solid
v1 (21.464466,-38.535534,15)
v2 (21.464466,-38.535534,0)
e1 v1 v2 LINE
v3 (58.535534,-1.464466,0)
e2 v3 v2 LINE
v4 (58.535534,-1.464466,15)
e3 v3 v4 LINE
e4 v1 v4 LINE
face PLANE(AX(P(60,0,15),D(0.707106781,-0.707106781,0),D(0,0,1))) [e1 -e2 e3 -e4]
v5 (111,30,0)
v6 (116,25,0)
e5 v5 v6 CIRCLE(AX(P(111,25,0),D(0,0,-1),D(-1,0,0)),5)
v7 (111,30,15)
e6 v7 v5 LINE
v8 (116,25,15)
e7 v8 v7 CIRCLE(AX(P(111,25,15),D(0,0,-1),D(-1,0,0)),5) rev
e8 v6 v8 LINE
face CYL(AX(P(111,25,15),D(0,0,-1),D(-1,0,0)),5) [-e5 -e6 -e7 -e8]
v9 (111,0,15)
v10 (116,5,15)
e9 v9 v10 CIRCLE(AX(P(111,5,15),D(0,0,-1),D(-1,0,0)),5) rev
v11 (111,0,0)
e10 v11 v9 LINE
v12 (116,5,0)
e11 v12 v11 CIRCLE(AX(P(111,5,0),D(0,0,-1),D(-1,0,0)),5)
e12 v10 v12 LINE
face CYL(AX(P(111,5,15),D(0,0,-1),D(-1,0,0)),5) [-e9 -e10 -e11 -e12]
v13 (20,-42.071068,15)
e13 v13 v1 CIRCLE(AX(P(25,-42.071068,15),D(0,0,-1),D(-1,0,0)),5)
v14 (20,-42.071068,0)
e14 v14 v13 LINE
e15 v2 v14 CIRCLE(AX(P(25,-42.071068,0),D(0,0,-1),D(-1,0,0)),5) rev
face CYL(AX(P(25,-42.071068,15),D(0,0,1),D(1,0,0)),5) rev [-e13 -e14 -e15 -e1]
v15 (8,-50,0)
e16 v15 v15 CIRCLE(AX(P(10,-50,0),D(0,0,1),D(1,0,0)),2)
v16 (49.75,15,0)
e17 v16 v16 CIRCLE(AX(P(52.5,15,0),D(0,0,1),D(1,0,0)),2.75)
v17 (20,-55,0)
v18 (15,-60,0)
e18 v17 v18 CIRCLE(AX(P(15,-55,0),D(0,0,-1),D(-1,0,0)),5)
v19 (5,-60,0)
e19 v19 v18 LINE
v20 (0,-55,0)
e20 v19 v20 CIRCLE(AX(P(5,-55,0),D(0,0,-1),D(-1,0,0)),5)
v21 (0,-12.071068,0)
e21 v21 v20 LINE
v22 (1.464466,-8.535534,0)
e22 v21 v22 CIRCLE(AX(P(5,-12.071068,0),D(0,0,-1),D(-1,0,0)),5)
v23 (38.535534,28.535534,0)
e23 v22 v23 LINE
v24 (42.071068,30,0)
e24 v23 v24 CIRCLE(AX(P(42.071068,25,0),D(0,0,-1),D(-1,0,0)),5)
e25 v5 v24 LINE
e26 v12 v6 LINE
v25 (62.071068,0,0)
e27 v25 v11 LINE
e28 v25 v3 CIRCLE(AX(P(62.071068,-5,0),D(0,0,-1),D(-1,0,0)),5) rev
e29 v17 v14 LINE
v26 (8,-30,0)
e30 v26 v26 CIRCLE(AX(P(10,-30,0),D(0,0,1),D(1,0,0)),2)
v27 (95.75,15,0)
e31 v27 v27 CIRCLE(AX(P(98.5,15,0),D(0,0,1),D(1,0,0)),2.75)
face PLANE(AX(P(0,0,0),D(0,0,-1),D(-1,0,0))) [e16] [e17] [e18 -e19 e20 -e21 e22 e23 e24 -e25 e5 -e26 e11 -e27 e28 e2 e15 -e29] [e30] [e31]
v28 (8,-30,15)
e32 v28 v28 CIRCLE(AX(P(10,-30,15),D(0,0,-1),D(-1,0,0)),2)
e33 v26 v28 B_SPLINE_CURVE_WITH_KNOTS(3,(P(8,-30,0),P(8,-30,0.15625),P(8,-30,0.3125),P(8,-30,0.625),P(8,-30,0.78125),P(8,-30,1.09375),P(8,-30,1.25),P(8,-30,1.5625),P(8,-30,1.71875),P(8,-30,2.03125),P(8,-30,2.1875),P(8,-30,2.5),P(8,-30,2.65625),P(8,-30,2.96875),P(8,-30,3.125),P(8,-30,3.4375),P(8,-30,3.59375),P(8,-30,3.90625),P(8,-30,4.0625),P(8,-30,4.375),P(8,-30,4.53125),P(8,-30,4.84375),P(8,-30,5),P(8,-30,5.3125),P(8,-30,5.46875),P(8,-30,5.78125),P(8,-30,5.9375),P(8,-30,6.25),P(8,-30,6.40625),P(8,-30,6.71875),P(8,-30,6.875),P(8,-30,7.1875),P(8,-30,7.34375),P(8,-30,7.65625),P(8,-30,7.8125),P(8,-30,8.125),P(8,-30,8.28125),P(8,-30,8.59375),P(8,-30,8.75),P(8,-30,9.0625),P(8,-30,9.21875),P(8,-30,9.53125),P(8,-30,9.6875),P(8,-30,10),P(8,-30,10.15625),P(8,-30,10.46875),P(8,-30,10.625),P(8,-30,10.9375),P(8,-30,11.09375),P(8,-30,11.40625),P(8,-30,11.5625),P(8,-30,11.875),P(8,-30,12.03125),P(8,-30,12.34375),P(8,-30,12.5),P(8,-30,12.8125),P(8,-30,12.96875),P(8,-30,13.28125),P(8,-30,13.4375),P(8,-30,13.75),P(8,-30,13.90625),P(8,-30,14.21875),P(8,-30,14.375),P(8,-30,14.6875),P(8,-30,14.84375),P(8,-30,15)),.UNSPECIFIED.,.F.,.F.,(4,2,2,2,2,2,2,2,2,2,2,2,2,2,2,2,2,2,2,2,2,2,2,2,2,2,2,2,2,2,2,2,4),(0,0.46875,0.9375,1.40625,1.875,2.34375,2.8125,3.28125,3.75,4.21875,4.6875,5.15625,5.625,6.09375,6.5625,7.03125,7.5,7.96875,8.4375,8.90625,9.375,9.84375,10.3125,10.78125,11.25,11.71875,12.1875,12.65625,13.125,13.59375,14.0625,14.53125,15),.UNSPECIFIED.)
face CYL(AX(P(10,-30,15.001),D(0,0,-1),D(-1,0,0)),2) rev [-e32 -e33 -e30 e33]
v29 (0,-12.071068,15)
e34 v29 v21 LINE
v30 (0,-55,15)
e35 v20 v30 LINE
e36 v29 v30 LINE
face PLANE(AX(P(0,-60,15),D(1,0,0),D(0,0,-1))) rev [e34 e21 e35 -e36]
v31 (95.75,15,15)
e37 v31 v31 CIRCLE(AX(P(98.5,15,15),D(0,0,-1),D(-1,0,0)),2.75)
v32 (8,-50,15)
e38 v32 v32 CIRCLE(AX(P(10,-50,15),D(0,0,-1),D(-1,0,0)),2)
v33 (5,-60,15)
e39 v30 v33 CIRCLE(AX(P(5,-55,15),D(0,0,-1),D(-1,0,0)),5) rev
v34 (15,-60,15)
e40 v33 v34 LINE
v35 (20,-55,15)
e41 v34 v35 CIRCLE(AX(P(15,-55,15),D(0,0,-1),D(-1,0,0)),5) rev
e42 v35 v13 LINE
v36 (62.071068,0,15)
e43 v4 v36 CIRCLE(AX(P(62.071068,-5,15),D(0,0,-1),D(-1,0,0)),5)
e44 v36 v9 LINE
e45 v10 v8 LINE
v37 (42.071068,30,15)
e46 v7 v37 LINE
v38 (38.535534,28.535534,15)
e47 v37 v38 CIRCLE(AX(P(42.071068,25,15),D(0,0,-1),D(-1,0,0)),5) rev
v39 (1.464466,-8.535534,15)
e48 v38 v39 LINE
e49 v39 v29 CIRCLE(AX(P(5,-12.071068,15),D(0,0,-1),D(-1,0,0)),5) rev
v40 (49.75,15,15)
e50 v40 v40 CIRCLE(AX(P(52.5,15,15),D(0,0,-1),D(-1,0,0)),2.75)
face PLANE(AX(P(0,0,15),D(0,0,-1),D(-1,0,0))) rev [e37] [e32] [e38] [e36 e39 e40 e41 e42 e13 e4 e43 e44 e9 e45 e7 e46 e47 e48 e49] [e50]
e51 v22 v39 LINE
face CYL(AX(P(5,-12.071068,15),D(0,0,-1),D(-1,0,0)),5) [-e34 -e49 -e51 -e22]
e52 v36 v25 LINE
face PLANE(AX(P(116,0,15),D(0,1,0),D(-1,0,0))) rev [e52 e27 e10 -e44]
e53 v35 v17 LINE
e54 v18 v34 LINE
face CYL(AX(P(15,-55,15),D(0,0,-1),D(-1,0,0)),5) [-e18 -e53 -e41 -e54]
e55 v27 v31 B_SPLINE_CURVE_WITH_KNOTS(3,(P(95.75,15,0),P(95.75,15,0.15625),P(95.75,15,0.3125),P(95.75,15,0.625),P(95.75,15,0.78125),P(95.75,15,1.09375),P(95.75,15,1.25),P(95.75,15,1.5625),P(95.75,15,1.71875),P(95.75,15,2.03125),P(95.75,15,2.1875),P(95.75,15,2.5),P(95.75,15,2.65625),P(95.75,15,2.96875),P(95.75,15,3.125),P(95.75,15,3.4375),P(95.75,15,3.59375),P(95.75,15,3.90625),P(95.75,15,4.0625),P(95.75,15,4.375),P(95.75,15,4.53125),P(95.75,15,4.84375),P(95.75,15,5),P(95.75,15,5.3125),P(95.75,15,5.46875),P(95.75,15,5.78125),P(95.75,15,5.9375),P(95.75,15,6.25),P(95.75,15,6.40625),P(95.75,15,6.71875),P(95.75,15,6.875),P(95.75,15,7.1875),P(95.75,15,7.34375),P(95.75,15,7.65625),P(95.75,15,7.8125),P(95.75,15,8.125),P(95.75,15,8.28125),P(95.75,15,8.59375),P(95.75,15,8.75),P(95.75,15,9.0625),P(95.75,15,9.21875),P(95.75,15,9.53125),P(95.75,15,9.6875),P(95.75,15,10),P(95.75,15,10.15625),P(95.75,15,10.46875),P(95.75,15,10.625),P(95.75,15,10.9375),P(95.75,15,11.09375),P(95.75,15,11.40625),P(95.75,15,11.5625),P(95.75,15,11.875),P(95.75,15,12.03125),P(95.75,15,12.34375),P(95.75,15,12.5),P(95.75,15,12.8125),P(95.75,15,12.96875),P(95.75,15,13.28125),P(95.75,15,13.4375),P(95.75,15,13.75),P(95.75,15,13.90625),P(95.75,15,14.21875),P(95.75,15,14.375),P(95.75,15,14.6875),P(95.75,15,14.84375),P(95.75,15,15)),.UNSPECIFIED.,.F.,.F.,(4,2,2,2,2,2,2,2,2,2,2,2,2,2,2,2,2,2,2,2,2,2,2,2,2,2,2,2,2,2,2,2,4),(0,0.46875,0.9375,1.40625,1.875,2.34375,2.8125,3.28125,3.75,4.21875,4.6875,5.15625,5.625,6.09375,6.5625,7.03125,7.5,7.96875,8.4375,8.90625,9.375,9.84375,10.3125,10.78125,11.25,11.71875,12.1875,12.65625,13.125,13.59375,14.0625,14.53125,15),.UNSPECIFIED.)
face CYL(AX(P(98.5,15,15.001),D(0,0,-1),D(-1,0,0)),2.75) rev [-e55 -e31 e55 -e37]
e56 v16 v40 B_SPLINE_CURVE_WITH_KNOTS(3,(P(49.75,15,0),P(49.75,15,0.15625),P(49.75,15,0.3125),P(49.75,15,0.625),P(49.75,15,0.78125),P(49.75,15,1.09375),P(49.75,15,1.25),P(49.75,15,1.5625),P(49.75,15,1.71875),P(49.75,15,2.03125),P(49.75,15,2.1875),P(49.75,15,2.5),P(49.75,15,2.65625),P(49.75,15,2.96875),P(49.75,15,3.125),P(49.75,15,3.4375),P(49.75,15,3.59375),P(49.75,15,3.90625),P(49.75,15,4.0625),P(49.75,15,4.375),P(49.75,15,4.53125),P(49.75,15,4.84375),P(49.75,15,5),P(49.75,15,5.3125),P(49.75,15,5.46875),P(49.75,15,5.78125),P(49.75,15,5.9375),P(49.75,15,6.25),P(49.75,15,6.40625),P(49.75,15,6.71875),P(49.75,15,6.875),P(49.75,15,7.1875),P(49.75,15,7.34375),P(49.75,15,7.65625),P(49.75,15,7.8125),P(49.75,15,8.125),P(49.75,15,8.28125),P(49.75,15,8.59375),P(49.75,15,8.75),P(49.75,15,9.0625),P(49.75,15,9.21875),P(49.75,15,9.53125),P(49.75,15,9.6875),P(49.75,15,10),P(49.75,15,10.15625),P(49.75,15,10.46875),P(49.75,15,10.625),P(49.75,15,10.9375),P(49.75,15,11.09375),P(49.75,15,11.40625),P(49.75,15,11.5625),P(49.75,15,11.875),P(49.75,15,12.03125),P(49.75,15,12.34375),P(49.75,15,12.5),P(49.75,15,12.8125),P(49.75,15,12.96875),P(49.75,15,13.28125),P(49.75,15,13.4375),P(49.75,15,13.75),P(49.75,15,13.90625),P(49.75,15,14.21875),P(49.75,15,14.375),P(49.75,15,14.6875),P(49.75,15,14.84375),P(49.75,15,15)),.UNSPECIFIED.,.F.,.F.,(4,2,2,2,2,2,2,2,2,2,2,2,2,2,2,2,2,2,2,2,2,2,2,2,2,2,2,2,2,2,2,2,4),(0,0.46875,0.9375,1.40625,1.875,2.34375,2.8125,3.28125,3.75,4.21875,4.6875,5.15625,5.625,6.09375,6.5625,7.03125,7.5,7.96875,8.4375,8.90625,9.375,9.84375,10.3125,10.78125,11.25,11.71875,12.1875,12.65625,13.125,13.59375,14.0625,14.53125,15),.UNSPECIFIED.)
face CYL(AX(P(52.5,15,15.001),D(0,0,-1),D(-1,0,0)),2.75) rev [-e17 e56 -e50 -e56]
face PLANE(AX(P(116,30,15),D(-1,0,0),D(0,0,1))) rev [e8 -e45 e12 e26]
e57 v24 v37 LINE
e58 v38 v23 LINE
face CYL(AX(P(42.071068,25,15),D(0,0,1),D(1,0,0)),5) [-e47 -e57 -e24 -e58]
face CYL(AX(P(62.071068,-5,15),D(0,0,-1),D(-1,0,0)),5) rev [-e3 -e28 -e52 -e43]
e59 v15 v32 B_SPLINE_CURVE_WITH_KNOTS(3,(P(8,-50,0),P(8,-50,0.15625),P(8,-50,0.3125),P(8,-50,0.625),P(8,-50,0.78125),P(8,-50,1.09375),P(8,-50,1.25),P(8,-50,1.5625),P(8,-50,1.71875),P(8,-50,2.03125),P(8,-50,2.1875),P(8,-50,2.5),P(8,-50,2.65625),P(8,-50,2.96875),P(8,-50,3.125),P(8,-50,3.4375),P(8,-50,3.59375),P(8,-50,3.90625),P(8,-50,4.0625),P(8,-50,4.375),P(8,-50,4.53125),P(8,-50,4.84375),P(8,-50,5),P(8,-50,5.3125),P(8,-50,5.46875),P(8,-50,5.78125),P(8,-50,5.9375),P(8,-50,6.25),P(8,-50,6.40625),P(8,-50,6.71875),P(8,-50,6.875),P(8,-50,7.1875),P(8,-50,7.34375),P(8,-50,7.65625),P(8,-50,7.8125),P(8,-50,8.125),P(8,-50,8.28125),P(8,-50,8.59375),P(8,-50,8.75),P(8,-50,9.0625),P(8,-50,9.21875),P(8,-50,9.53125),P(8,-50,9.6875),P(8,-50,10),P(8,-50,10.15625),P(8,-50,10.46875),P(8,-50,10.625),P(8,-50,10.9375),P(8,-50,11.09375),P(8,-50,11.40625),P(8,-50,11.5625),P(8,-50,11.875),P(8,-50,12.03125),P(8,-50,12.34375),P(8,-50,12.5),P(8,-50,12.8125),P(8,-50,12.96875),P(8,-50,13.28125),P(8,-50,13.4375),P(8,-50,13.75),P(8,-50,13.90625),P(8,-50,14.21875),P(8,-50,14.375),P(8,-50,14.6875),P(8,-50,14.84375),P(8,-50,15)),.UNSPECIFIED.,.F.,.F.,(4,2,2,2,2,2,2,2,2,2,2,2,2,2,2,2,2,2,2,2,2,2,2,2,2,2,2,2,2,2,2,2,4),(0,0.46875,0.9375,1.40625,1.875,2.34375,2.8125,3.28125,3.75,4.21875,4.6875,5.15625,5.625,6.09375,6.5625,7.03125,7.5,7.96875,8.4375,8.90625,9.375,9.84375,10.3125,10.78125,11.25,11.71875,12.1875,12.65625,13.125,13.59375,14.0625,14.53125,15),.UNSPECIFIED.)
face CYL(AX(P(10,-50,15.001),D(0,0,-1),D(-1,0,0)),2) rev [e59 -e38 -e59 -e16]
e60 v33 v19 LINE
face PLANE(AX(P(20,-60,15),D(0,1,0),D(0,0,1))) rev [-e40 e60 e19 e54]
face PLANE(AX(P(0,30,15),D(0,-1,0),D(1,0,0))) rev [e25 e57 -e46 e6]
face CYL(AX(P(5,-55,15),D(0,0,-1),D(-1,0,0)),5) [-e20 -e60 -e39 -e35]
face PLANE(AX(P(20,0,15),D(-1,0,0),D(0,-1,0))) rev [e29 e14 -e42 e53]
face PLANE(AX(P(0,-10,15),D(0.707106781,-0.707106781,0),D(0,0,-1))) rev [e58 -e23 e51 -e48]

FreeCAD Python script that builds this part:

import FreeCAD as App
import Part
import Sketcher
from FreeCAD import Vector


def edges_at(feature, points):
    """Names of the edges that pass closest to the given points."""
    edges = feature.Shape.Edges
    near = lambda p: min(range(len(edges)), key=lambda i: edges[i].distToShape(Part.Vertex(*p))[0])
    return sorted({f"Edge{near(p) + 1}" for p in points})

doc = App.newDocument("Part")
body = doc.addObject("PartDesign::Body", "Body")

# Sketch on XY plane
sketch1 = doc.addObject("Sketcher::SketchObject", "Sketch")
body.addObject(sketch1)
sketch1.AttachmentSupport = (doc.XY_Plane, [""])
sketch1.MapMode = "FlatFace"
sketch1.addGeometry(Part.LineSegment(Vector(0, 30, 0), Vector(0, -60, 0)), False)
sketch1.addGeometry(Part.LineSegment(Vector(0, -60, 0), Vector(20, -60, 0)), False)
sketch1.addGeometry(Part.LineSegment(Vector(20, -60, 0), Vector(20, 0, 0)), False)
sketch1.addGeometry(Part.LineSegment(Vector(20, 0, 0), Vector(116, 0, 0)), False)
sketch1.addGeometry(Part.LineSegment(Vector(116, 0, 0), Vector(116, 30, 0)), False)
sketch1.addGeometry(Part.LineSegment(Vector(116, 30, 0), Vector(0, 30, 0)), False)
sketch1.addConstraint(Sketcher.Constraint("Coincident", 0, 2, 1, 1))
sketch1.addConstraint(Sketcher.Constraint("Coincident", 1, 2, 2, 1))
sketch1.addConstraint(Sketcher.Constraint("Coincident", 2, 2, 3, 1))
sketch1.addConstraint(Sketcher.Constraint("Coincident", 3, 2, 4, 1))
sketch1.addConstraint(Sketcher.Constraint("Coincident", 4, 2, 5, 1))
sketch1.addConstraint(Sketcher.Constraint("Coincident", 5, 2, 0, 1))
sketch1.addConstraint(Sketcher.Constraint("Vertical", 0))
sketch1.addConstraint(Sketcher.Constraint("Horizontal", 1))
sketch1.addConstraint(Sketcher.Constraint("Vertical", 2))
sketch1.addConstraint(Sketcher.Constraint("Horizontal", 3))
sketch1.addConstraint(Sketcher.Constraint("Vertical", 4))
sketch1.addConstraint(Sketcher.Constraint("Horizontal", 5))
sketch1.addConstraint(Sketcher.Constraint("PointOnObject", 0, 2, -2))
sketch1.addConstraint(Sketcher.Constraint("PointOnObject", 2, 2, -1))
sketch1.addConstraint(Sketcher.Constraint("DistanceX", 1, 1, 1, 2, 20.0))
sketch1.addConstraint(Sketcher.Constraint("DistanceX", 3, 1, 3, 2, 96.0))
sketch1.addConstraint(Sketcher.Constraint("DistanceY", 0, 2, 0, 1, 90.0))
sketch1.addConstraint(Sketcher.Constraint("DistanceY", 2, 1, 2, 2, 60.0))
pad1 = doc.addObject("PartDesign::Pad", "Pad")
body.addObject(pad1)
pad1.Profile = sketch1
pad1.Length = 15

# Sketch on XY plane
sketch2 = doc.addObject("Sketcher::SketchObject", "Sketch001")
body.addObject(sketch2)
sketch2.AttachmentSupport = (doc.XY_Plane, [""])
sketch2.MapMode = "FlatFace"
sketch2.addGeometry(Part.Circle(Vector(10, -50, 0), Vector(0, 0, 1), 2), False)
sketch2.addConstraint(Sketcher.Constraint("Diameter", 0, 4.0))
sketch2.addConstraint(Sketcher.Constraint("DistanceX", -1, 1, 0, 3, 10.0))
sketch2.addConstraint(Sketcher.Constraint("DistanceY", 0, 3, -1, 1, 50.0))
pocket1 = doc.addObject("PartDesign::Pocket", "Pocket")
body.addObject(pocket1)
pocket1.Profile = sketch2
pocket1.Type = "UpToFirst"
pocket1.Reversed = True

# Sketch on XY plane
sketch3 = doc.addObject("Sketcher::SketchObject", "Sketch002")
body.addObject(sketch3)
sketch3.AttachmentSupport = (doc.XY_Plane, [""])
sketch3.MapMode = "FlatFace"
sketch3.addGeometry(Part.Circle(Vector(10, -30, 0), Vector(0, 0, 1), 2), False)
sketch3.addConstraint(Sketcher.Constraint("Diameter", 0, 4.0))
sketch3.addConstraint(Sketcher.Constraint("DistanceX", -1, 1, 0, 3, 10.0))
sketch3.addConstraint(Sketcher.Constraint("DistanceY", 0, 3, -1, 1, 30.0))
pocket2 = doc.addObject("PartDesign::Pocket", "Pocket001")
body.addObject(pocket2)
pocket2.Profile = sketch3
pocket2.Type = "UpToFirst"
pocket2.Reversed = True

# Sketch on XY plane
sketch4 = doc.addObject("Sketcher::SketchObject", "Sketch003")
body.addObject(sketch4)
sketch4.AttachmentSupport = (doc.XY_Plane, [""])
sketch4.MapMode = "FlatFace"
sketch4.addGeometry(Part.Circle(Vector(52.5, 15, 0), Vector(0, 0, 1), 2.8), False)
sketch4.addConstraint(Sketcher.Constraint("Diameter", 0, 5.5))
sketch4.addConstraint(Sketcher.Constraint("DistanceY", -1, 1, 0, 3, 15.0))
sketch4.addConstraint(Sketcher.Constraint("DistanceX", -1, 1, 0, 3, 52.5))
pocket3 = doc.addObject("PartDesign::Pocket", "Pocket002")
body.addObject(pocket3)
pocket3.Profile = sketch4
pocket3.Type = "UpToFirst"
pocket3.Reversed = True

# Sketch on XY plane
sketch5 = doc.addObject("Sketcher::SketchObject", "Sketch004")
body.addObject(sketch5)
sketch5.AttachmentSupport = (doc.XY_Plane, [""])
sketch5.MapMode = "FlatFace"
sketch5.addGeometry(Part.Circle(Vector(98.5, 15, 0), Vector(0, 0, 1), 2.8), False)
sketch5.addConstraint(Sketcher.Constraint("Diameter", 0, 5.5))
sketch5.addConstraint(Sketcher.Constraint("DistanceY", -1, 1, 0, 3, 15.0))
sketch5.addConstraint(Sketcher.Constraint("DistanceX", -1, 1, 0, 3, 98.5))
pocket4 = doc.addObject("PartDesign::Pocket", "Pocket003")
body.addObject(pocket4)
pocket4.Profile = sketch5
pocket4.Type = "UpToFirst"
pocket4.Reversed = True
doc.recompute()

chamfer = doc.addObject("PartDesign::Chamfer", "Chamfer")
body.addObject(chamfer)
chamfer.Base = (pocket4, edges_at(pocket4, [(0, 30, 7.5), (20, 0, 7.5)]))
chamfer.Size = 40
doc.recompute()

fillet = doc.addObject("PartDesign::Fillet", "Fillet")
body.addObject(fillet)
fillet.Base = (chamfer, edges_at(chamfer, [
    (0, -60, 7.5),
    (116, 30, 7.5),
    (116, 0, 7.5),
    (20, -60, 7.5),
    (0, -10, 7.5),
    (40, 30, 7.5),
    (60, 0, 7.5),
    (20, -40, 7.5),
]))
fillet.Radius = 5

doc.recompute()
